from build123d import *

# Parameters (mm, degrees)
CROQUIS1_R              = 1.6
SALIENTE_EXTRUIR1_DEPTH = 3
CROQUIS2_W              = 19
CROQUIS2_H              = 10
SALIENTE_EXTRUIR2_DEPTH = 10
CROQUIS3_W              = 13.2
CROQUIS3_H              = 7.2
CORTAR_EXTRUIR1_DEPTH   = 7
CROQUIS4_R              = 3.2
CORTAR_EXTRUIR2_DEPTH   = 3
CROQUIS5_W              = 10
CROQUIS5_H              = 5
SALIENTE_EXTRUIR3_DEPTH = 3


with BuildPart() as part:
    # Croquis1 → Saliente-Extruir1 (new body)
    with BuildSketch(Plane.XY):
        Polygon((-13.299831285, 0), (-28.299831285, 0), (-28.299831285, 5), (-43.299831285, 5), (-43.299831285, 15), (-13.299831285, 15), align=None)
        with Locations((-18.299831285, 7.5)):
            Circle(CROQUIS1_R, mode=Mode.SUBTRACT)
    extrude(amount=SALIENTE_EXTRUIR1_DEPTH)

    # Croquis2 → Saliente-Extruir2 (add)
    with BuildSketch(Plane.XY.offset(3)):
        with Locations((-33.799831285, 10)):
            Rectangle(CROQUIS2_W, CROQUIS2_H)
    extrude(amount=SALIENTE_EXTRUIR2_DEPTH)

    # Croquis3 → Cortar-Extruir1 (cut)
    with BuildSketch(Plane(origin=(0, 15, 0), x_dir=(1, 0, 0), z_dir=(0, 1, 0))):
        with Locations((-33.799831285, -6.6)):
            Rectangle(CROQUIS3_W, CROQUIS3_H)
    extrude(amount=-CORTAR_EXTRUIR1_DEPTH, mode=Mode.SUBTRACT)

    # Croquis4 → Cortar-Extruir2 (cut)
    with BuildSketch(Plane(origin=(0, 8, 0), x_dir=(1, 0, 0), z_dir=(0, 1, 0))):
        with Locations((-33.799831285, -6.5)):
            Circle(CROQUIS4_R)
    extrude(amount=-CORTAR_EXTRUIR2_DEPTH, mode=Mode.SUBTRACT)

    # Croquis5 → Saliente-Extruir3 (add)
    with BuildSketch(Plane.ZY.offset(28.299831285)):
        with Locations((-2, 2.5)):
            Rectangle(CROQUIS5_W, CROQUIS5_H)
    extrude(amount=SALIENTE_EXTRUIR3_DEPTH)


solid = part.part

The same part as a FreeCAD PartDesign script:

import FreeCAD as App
import Part
import Sketcher

V = App.Vector


def add_polygon(sketch, points):
    """Adds a closed chain of lines whose ends are joined by coincident constraints."""
    first, n = sketch.GeometryCount, len(points)
    for a, b in zip(points, points[1:] + points[:1]):
        sketch.addGeometry(Part.LineSegment(App.Vector(*a, 0), App.Vector(*b, 0)), False)
    for i in range(n):
        sketch.addConstraint(Sketcher.Constraint("Coincident", first + i, 2, first + (i + 1) % n, 1))

doc = App.newDocument("Part")
params = doc.addObject("Spreadsheet::Sheet", "Params")
for row, (alias, value) in enumerate([
    ("sketch1_diameter", "3.2 mm"),
    ("sketch1_width", "15 mm"),
    ("sketch1_height", "10 mm"),
    ("pad1_length", "3 mm"),
    ("sketch2_width", "19 mm"),
    ("sketch2_height", "10 mm"),
    ("pad2_length", "10 mm"),
    ("sketch3_width", "13.2 mm"),
    ("sketch3_height", "7.2 mm"),
    ("pocket1_length", "7 mm"),
    ("sketch4_diameter", "6.4 mm"),
    ("pocket2_length", "3 mm"),
    ("sketch5_width", "5 mm"),
    ("sketch5_height", "10 mm"),
    ("pad3_length", "3 mm"),
], start=1):
    params.set(f"A{row}", alias)
    params.set(f"B{row}", "=" + value)
    params.setAlias(f"B{row}", alias)

body = doc.addObject("PartDesign::Body", "Body")

sketch1 = body.newObject("Sketcher::SketchObject", "Sketch")
sketch1.AttachmentSupport = (doc.getObject("XY_Plane"), [""])
sketch1.MapMode = "FlatFace"
add_polygon(sketch1, [(-28.3, 0), (-13.3, 0), (-13.3, 15), (-43.3, 15), (-43.3, 5), (-28.3, 5)])
sketch1.addGeometry(Part.Circle(V(-18.3, 7.5, 0), V(0, 0, 1), 1.6), False)
sketch1.addConstraint([
    Sketcher.Constraint("Horizontal", 0),
    Sketcher.Constraint("Vertical", 1),
    Sketcher.Constraint("Horizontal", 2),
    Sketcher.Constraint("Vertical", 3),
    Sketcher.Constraint("Horizontal", 4),
    Sketcher.Constraint("Vertical", 5),
    Sketcher.Constraint("PointOnObject", 0, 2, -1),
    Sketcher.Constraint("Equal", 0, 4),
    Sketcher.Constraint("Equal", 4, 1),
    Sketcher.Constraint("Diameter", 6, 3.2),
    Sketcher.Constraint("DistanceX", 0, 1, 0, 2, 15.0),
    Sketcher.Constraint("DistanceY", 3, 2, 3, 1, 10.0),
    Sketcher.Constraint("DistanceX", 6, 3, 0, 2, 5.0),
    Sketcher.Constraint("DistanceY", -1, 1, 6, 3, 7.5),
    Sketcher.Constraint("DistanceX", 6, 3, -1, 1, 18.299831),
])
sketch1.setExpression("Constraints[15]", "Params.sketch1_diameter")
sketch1.setExpression("Constraints[16]", "Params.sketch1_width")
sketch1.setExpression("Constraints[17]", "Params.sketch1_height")
pad1 = body.newObject("PartDesign::Pad", "Pad")
pad1.Profile = sketch1
pad1.setExpression("Length", "Params.pad1_length")

sketch2 = body.newObject("Sketcher::SketchObject", "Sketch001")
sketch2.AttachmentSupport = (doc.getObject("XY_Plane"), [""])
sketch2.MapMode = "FlatFace"
sketch2.AttachmentOffset = App.Placement(V(0, 0, 3), App.Rotation())
add_polygon(sketch2, [(-43, 15), (-43, 5), (-24, 5), (-24, 15)])
sketch2.addConstraint([
    Sketcher.Constraint("Vertical", 0),
    Sketcher.Constraint("Horizontal", 1),
    Sketcher.Constraint("Vertical", 2),
    Sketcher.Constraint("Horizontal", 3),
    Sketcher.Constraint("DistanceX", 1, 1, 1, 2, 19.0),
    Sketcher.Constraint("DistanceY", 0, 2, 0, 1, 10.0),
    Sketcher.Constraint("DistanceY", -1, 1, 0, 2, 5.0),
    Sketcher.Constraint("DistanceX", 0, 2, -1, 1, 43.299831),
])
sketch2.setExpression("Constraints[8]", "Params.sketch2_width")
sketch2.setExpression("Constraints[9]", "Params.sketch2_height")
pad2 = body.newObject("PartDesign::Pad", "Pad001")
pad2.Profile = sketch2
pad2.setExpression("Length", "Params.pad2_length")

sketch3 = body.newObject("Sketcher::SketchObject", "Sketch002")
sketch3.AttachmentSupport = (doc.getObject("XZ_Plane"), [""])
sketch3.MapMode = "FlatFace"
sketch3.AttachmentOffset = App.Placement(V(0, 0, -15), App.Rotation())
add_polygon(sketch3, [(-40, 3), (-40, 10), (-27, 10), (-27, 3)])
sketch3.addConstraint([
    Sketcher.Constraint("Vertical", 0),
    Sketcher.Constraint("Horizontal", 1),
    Sketcher.Constraint("Vertical", 2),
    Sketcher.Constraint("Horizontal", 3),
    Sketcher.Constraint("DistanceX", 1, 1, 1, 2, 13.2),
    Sketcher.Constraint("DistanceY", 0, 1, 0, 2, 7.2),
    Sketcher.Constraint("DistanceY", -1, 1, 2, 2, 3.0),
    Sketcher.Constraint("DistanceX", 0, 2, -1, 1, 40.399831),
])
sketch3.setExpression("Constraints[8]", "Params.sketch3_width")
sketch3.setExpression("Constraints[9]", "Params.sketch3_height")
pocket1 = body.newObject("PartDesign::Pocket", "Pocket")
pocket1.Profile = sketch3
pocket1.setExpression("Length", "Params.pocket1_length")
pocket1.Reversed = True

sketch4 = body.newObject("Sketcher::SketchObject", "Sketch003")
sketch4.AttachmentSupport = (doc.getObject("XZ_Plane"), [""])
sketch4.MapMode = "FlatFace"
sketch4.AttachmentOffset = App.Placement(V(0, 0, -8), App.Rotation())
sketch4.addGeometry(Part.Circle(V(-33.8, 6.5, 0), V(0, 0, 1), 3.2), False)
sketch4.addConstraint([
    Sketcher.Constraint("Diameter", 0, 6.4),
    Sketcher.Constraint("DistanceY", -1, 1, 0, 3, 6.5),
    Sketcher.Constraint("DistanceX", 0, 3, -1, 1, 33.799831),
])
sketch4.setExpression("Constraints[0]", "Params.sketch4_diameter")
pocket2 = body.newObject("PartDesign::Pocket", "Pocket001")
pocket2.Profile = sketch4
pocket2.setExpression("Length", "Params.pocket2_length")
pocket2.Reversed = True

sketch5 = body.newObject("Sketcher::SketchObject", "Sketch004")
sketch5.AttachmentSupport = (doc.getObject("YZ_Plane"), [""])
sketch5.MapMode = "FlatFace"
sketch5.AttachmentOffset = App.Placement(V(0, 0, -28.299831), App.Rotation())
add_polygon(sketch5, [(5, -7), (0, -7), (0, 3), (5, 3)])
sketch5.addConstraint([
    Sketcher.Constraint("Horizontal", 0),
    Sketcher.Constraint("Vertical", 1),
    Sketcher.Constraint("Horizontal", 2),
    Sketcher.Constraint("Vertical", 3),
    Sketcher.Constraint("PointOnObject", 0, 2, -2),
    Sketcher.Constraint("DistanceX", 0, 2, 0, 1, 5.0),
    Sketcher.Constraint("DistanceY", 1, 1, 1, 2, 10.0),
    Sketcher.Constraint("DistanceY", 0, 2, -1, 1, 7.0),
])
sketch5.setExpression("Constraints[9]", "Params.sketch5_width")
sketch5.setExpression("Constraints[10]", "Params.sketch5_height")
pad3 = body.newObject("PartDesign::Pad", "Pad002")
pad3.Profile = sketch5
pad3.setExpression("Length", "Params.pad3_length")
pad3.Reversed = True

doc.recompute()
